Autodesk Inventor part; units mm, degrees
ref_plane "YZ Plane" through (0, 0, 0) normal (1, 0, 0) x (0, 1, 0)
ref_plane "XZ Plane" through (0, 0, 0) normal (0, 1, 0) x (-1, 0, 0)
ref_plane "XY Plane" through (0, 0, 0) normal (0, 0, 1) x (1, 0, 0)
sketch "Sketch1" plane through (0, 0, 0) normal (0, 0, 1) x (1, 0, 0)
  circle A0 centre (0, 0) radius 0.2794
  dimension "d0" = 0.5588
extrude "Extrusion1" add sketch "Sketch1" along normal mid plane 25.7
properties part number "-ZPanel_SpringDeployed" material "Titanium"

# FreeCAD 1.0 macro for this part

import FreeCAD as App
import Part
import Sketcher
from FreeCAD import Vector
Q = App.Units.Quantity

doc = App.newDocument("Part")
body = doc.addObject("PartDesign::Body", "Body")

# Sketch on XY plane
sketch1 = body.newObject("Sketcher::SketchObject", "Sketch")
sketch1.AttachmentSupport = (doc.getObject("XY_Plane"), [""])
sketch1.MapMode = "FlatFace"
sketch1.addGeometry(Part.Circle(Vector(0, 0, 0), Vector(0, 0, 1), 0.2794), False)
sketch1.addConstraint([
    Sketcher.Constraint("Coincident", 0, 3, -1, 1),
    Sketcher.Constraint("Diameter", 0, Q("0.022 in")),
])
pad1 = body.newObject("PartDesign::Pad", "Pad")
pad1.Profile = sketch1
pad1.Length = Q("1.011811 in")
pad1.Midplane = True

doc.recompute()
